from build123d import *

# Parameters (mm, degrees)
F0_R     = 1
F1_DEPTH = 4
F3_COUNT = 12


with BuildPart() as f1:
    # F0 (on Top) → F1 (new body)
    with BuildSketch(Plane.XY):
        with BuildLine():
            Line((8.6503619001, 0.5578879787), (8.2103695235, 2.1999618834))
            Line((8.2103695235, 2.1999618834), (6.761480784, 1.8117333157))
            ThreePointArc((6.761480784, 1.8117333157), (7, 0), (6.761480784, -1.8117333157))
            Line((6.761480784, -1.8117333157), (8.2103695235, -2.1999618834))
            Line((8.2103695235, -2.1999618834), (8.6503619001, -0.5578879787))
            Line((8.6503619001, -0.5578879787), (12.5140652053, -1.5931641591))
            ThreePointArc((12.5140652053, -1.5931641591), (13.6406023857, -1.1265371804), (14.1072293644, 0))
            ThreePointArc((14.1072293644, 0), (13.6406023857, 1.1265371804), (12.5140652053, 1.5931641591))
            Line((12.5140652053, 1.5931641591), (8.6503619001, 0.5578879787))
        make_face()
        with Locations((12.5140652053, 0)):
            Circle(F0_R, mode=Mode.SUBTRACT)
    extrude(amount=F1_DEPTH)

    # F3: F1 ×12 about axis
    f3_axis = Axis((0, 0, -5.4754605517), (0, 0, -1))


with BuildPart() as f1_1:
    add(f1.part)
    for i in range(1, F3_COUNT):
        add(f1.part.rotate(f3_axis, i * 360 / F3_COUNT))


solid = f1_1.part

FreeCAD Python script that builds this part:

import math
import FreeCAD as App
import Part
import Sketcher
Q = App.Units.Quantity

doc = App.newDocument("Part")
body = doc.addObject("PartDesign::Body", "Body")

# Sketch on XY plane
sketch1 = body.newObject("Sketcher::SketchObject", "Sketch")
sketch1.AttachmentSupport = (doc.getObject("XY_Plane"), [""])
sketch1.MapMode = "FlatFace"
sketch1.addGeometry([
    Part.LineSegment(App.Vector(8.7, 0.6, 0), App.Vector(8.2, 2.2, 0)),  # 0
    Part.LineSegment(App.Vector(8.2, 2.2, 0), App.Vector(6.8, 1.8, 0)),  # 1
    Part.ArcOfCircle(Part.Circle(App.Vector(0, 0, 0), App.Vector(0, 0, 1), 7), math.radians(-15), math.radians(15)),  # 2
    Part.LineSegment(App.Vector(6.8, -1.8, 0), App.Vector(8.2, -2.2, 0)),  # 3
    Part.LineSegment(App.Vector(8.2, -2.2, 0), App.Vector(8.7, -0.6, 0)),  # 4
    Part.LineSegment(App.Vector(8.7, -0.6, 0), App.Vector(12.5, -1.6, 0)),  # 5
    Part.ArcOfCircle(Part.Circle(App.Vector(12.5, 0, 0), App.Vector(0, 0, 1), 1.6), math.radians(-90), math.radians(0)),  # 6
    Part.ArcOfCircle(Part.Circle(App.Vector(12.5, 0, 0), App.Vector(0, 0, 1), 1.6), math.radians(0), math.radians(90)),  # 7
    Part.LineSegment(App.Vector(12.5, 1.6, 0), App.Vector(8.7, 0.6, 0)),  # 8
    Part.Circle(App.Vector(12.5, 0, 0), App.Vector(0, 0, 1), 1),  # 9
], False)
sketch1.addConstraint([
    Sketcher.Constraint("Coincident", 0, 2, 1, 1),
    Sketcher.Constraint("Coincident", 1, 2, 2, 2),
    Sketcher.Constraint("Coincident", 2, 1, 3, 1),
    Sketcher.Constraint("Coincident", 3, 2, 4, 1),
    Sketcher.Constraint("Coincident", 4, 2, 5, 1),
    Sketcher.Constraint("Coincident", 5, 2, 6, 1),
    Sketcher.Constraint("Tangent", 6, 2, 7, 1),
    Sketcher.Constraint("Coincident", 7, 2, 8, 1),
    Sketcher.Constraint("Coincident", 8, 2, 0, 1),
    Sketcher.Constraint("Coincident", 2, 3, -1, 1),
    Sketcher.Constraint("Coincident", 9, 3, 6, 3),
    Sketcher.Constraint("Equal", 6, 7),
    Sketcher.Constraint("Symmetric", 0, 2, 3, 2, -1),
    Sketcher.Constraint("Symmetric", 5, 2, 7, 2, -1),
    Sketcher.Constraint("Symmetric", 4, 2, 8, 2, -1),
    Sketcher.Constraint("PointOnObject", 6, 2, -1),
    Sketcher.Constraint("Perpendicular", 0, 1),
    Sketcher.Constraint("Perpendicular", 3, 4),
    Sketcher.Constraint("Perpendicular", 4, 5),
    Sketcher.Constraint("Vertical", 9, 3, 5, 2),
    Sketcher.Constraint("Diameter", 9, Q("2 mm")),
    Sketcher.Constraint("Radius", 2, Q("7 mm")),
    Sketcher.Constraint("Angle", 0, Q("105 deg")),
    Sketcher.Constraint("Distance", 5, Q("4 mm")),
    Sketcher.Constraint("Distance", 0, Q("1.7 mm")),
    Sketcher.Constraint("Distance", 1, Q("1.5 mm")),
    Sketcher.Constraint("Radius", 6, Q("1.593164 mm")),
])
pad1 = body.newObject("PartDesign::Pad", "Pad")
pad1.Profile = sketch1
pad1.Length = 4
body2 = doc.addObject("PartDesign::Body", "Body001")
doc.recompute()

body2.BaseFeature = body
doc.recompute()

body3 = doc.addObject("PartDesign::Body", "Body002")
body3.BaseFeature = body
body3.Placement = App.Placement(App.Vector(0, 0, 0), App.Rotation(App.Vector(0, 0, -1), 30))
boolean = body2.newObject("PartDesign::Boolean", "Boolean")
boolean.Type = "Fuse"
boolean.addObjects([body3])
doc.recompute()

body4 = doc.addObject("PartDesign::Body", "Body003")
body4.BaseFeature = body
body4.Placement = App.Placement(App.Vector(0, 0, 0), App.Rotation(App.Vector(0, 0, -1), 60))
boolean2 = body2.newObject("PartDesign::Boolean", "Boolean001")
boolean2.Type = "Fuse"
boolean2.addObjects([body4])
doc.recompute()

body5 = doc.addObject("PartDesign::Body", "Body004")
body5.BaseFeature = body
body5.Placement = App.Placement(App.Vector(0, 0, 0), App.Rotation(App.Vector(0, 0, -1), 90))
boolean3 = body2.newObject("PartDesign::Boolean", "Boolean002")
boolean3.Type = "Fuse"
boolean3.addObjects([body5])
doc.recompute()

body6 = doc.addObject("PartDesign::Body", "Body005")
body6.BaseFeature = body
body6.Placement = App.Placement(App.Vector(0, 0, 0), App.Rotation(App.Vector(0, 0, -1), 120))
boolean4 = body2.newObject("PartDesign::Boolean", "Boolean003")
boolean4.Type = "Fuse"
boolean4.addObjects([body6])
doc.recompute()

body7 = doc.addObject("PartDesign::Body", "Body006")
body7.BaseFeature = body
body7.Placement = App.Placement(App.Vector(0, 0, 0), App.Rotation(App.Vector(0, 0, -1), 150))
boolean5 = body2.newObject("PartDesign::Boolean", "Boolean004")
boolean5.Type = "Fuse"
boolean5.addObjects([body7])
doc.recompute()

body8 = doc.addObject("PartDesign::Body", "Body007")
body8.BaseFeature = body
body8.Placement = App.Placement(App.Vector(0, 0, 0), App.Rotation(App.Vector(0, 0, -1), 180))
boolean6 = body2.newObject("PartDesign::Boolean", "Boolean005")
boolean6.Type = "Fuse"
boolean6.addObjects([body8])
doc.recompute()

body9 = doc.addObject("PartDesign::Body", "Body008")
body9.BaseFeature = body
body9.Placement = App.Placement(App.Vector(0, 0, 0), App.Rotation(App.Vector(0, 0, -1), 210))
boolean7 = body2.newObject("PartDesign::Boolean", "Boolean006")
boolean7.Type = "Fuse"
boolean7.addObjects([body9])
doc.recompute()

body10 = doc.addObject("PartDesign::Body", "Body009")
body10.BaseFeature = body
body10.Placement = App.Placement(App.Vector(0, 0, 0), App.Rotation(App.Vector(0, 0, -1), 240))
boolean8 = body2.newObject("PartDesign::Boolean", "Boolean007")
boolean8.Type = "Fuse"
boolean8.addObjects([body10])
doc.recompute()

body11 = doc.addObject("PartDesign::Body", "Body010")
body11.BaseFeature = body
body11.Placement = App.Placement(App.Vector(0, 0, 0), App.Rotation(App.Vector(0, 0, -1), 270))
boolean9 = body2.newObject("PartDesign::Boolean", "Boolean008")
boolean9.Type = "Fuse"
boolean9.addObjects([body11])
doc.recompute()

body12 = doc.addObject("PartDesign::Body", "Body011")
body12.BaseFeature = body
body12.Placement = App.Placement(App.Vector(0, 0, 0), App.Rotation(App.Vector(0, 0, -1), 300))
boolean10 = body2.newObject("PartDesign::Boolean", "Boolean009")
boolean10.Type = "Fuse"
boolean10.addObjects([body12])
doc.recompute()

body.Placement = App.Placement(App.Vector(0, 0, 0), App.Rotation(App.Vector(0, 0, -1), 330))
boolean11 = body2.newObject("PartDesign::Boolean", "Boolean010")
boolean11.Type = "Fuse"
boolean11.addObjects([body])

doc.recompute()
